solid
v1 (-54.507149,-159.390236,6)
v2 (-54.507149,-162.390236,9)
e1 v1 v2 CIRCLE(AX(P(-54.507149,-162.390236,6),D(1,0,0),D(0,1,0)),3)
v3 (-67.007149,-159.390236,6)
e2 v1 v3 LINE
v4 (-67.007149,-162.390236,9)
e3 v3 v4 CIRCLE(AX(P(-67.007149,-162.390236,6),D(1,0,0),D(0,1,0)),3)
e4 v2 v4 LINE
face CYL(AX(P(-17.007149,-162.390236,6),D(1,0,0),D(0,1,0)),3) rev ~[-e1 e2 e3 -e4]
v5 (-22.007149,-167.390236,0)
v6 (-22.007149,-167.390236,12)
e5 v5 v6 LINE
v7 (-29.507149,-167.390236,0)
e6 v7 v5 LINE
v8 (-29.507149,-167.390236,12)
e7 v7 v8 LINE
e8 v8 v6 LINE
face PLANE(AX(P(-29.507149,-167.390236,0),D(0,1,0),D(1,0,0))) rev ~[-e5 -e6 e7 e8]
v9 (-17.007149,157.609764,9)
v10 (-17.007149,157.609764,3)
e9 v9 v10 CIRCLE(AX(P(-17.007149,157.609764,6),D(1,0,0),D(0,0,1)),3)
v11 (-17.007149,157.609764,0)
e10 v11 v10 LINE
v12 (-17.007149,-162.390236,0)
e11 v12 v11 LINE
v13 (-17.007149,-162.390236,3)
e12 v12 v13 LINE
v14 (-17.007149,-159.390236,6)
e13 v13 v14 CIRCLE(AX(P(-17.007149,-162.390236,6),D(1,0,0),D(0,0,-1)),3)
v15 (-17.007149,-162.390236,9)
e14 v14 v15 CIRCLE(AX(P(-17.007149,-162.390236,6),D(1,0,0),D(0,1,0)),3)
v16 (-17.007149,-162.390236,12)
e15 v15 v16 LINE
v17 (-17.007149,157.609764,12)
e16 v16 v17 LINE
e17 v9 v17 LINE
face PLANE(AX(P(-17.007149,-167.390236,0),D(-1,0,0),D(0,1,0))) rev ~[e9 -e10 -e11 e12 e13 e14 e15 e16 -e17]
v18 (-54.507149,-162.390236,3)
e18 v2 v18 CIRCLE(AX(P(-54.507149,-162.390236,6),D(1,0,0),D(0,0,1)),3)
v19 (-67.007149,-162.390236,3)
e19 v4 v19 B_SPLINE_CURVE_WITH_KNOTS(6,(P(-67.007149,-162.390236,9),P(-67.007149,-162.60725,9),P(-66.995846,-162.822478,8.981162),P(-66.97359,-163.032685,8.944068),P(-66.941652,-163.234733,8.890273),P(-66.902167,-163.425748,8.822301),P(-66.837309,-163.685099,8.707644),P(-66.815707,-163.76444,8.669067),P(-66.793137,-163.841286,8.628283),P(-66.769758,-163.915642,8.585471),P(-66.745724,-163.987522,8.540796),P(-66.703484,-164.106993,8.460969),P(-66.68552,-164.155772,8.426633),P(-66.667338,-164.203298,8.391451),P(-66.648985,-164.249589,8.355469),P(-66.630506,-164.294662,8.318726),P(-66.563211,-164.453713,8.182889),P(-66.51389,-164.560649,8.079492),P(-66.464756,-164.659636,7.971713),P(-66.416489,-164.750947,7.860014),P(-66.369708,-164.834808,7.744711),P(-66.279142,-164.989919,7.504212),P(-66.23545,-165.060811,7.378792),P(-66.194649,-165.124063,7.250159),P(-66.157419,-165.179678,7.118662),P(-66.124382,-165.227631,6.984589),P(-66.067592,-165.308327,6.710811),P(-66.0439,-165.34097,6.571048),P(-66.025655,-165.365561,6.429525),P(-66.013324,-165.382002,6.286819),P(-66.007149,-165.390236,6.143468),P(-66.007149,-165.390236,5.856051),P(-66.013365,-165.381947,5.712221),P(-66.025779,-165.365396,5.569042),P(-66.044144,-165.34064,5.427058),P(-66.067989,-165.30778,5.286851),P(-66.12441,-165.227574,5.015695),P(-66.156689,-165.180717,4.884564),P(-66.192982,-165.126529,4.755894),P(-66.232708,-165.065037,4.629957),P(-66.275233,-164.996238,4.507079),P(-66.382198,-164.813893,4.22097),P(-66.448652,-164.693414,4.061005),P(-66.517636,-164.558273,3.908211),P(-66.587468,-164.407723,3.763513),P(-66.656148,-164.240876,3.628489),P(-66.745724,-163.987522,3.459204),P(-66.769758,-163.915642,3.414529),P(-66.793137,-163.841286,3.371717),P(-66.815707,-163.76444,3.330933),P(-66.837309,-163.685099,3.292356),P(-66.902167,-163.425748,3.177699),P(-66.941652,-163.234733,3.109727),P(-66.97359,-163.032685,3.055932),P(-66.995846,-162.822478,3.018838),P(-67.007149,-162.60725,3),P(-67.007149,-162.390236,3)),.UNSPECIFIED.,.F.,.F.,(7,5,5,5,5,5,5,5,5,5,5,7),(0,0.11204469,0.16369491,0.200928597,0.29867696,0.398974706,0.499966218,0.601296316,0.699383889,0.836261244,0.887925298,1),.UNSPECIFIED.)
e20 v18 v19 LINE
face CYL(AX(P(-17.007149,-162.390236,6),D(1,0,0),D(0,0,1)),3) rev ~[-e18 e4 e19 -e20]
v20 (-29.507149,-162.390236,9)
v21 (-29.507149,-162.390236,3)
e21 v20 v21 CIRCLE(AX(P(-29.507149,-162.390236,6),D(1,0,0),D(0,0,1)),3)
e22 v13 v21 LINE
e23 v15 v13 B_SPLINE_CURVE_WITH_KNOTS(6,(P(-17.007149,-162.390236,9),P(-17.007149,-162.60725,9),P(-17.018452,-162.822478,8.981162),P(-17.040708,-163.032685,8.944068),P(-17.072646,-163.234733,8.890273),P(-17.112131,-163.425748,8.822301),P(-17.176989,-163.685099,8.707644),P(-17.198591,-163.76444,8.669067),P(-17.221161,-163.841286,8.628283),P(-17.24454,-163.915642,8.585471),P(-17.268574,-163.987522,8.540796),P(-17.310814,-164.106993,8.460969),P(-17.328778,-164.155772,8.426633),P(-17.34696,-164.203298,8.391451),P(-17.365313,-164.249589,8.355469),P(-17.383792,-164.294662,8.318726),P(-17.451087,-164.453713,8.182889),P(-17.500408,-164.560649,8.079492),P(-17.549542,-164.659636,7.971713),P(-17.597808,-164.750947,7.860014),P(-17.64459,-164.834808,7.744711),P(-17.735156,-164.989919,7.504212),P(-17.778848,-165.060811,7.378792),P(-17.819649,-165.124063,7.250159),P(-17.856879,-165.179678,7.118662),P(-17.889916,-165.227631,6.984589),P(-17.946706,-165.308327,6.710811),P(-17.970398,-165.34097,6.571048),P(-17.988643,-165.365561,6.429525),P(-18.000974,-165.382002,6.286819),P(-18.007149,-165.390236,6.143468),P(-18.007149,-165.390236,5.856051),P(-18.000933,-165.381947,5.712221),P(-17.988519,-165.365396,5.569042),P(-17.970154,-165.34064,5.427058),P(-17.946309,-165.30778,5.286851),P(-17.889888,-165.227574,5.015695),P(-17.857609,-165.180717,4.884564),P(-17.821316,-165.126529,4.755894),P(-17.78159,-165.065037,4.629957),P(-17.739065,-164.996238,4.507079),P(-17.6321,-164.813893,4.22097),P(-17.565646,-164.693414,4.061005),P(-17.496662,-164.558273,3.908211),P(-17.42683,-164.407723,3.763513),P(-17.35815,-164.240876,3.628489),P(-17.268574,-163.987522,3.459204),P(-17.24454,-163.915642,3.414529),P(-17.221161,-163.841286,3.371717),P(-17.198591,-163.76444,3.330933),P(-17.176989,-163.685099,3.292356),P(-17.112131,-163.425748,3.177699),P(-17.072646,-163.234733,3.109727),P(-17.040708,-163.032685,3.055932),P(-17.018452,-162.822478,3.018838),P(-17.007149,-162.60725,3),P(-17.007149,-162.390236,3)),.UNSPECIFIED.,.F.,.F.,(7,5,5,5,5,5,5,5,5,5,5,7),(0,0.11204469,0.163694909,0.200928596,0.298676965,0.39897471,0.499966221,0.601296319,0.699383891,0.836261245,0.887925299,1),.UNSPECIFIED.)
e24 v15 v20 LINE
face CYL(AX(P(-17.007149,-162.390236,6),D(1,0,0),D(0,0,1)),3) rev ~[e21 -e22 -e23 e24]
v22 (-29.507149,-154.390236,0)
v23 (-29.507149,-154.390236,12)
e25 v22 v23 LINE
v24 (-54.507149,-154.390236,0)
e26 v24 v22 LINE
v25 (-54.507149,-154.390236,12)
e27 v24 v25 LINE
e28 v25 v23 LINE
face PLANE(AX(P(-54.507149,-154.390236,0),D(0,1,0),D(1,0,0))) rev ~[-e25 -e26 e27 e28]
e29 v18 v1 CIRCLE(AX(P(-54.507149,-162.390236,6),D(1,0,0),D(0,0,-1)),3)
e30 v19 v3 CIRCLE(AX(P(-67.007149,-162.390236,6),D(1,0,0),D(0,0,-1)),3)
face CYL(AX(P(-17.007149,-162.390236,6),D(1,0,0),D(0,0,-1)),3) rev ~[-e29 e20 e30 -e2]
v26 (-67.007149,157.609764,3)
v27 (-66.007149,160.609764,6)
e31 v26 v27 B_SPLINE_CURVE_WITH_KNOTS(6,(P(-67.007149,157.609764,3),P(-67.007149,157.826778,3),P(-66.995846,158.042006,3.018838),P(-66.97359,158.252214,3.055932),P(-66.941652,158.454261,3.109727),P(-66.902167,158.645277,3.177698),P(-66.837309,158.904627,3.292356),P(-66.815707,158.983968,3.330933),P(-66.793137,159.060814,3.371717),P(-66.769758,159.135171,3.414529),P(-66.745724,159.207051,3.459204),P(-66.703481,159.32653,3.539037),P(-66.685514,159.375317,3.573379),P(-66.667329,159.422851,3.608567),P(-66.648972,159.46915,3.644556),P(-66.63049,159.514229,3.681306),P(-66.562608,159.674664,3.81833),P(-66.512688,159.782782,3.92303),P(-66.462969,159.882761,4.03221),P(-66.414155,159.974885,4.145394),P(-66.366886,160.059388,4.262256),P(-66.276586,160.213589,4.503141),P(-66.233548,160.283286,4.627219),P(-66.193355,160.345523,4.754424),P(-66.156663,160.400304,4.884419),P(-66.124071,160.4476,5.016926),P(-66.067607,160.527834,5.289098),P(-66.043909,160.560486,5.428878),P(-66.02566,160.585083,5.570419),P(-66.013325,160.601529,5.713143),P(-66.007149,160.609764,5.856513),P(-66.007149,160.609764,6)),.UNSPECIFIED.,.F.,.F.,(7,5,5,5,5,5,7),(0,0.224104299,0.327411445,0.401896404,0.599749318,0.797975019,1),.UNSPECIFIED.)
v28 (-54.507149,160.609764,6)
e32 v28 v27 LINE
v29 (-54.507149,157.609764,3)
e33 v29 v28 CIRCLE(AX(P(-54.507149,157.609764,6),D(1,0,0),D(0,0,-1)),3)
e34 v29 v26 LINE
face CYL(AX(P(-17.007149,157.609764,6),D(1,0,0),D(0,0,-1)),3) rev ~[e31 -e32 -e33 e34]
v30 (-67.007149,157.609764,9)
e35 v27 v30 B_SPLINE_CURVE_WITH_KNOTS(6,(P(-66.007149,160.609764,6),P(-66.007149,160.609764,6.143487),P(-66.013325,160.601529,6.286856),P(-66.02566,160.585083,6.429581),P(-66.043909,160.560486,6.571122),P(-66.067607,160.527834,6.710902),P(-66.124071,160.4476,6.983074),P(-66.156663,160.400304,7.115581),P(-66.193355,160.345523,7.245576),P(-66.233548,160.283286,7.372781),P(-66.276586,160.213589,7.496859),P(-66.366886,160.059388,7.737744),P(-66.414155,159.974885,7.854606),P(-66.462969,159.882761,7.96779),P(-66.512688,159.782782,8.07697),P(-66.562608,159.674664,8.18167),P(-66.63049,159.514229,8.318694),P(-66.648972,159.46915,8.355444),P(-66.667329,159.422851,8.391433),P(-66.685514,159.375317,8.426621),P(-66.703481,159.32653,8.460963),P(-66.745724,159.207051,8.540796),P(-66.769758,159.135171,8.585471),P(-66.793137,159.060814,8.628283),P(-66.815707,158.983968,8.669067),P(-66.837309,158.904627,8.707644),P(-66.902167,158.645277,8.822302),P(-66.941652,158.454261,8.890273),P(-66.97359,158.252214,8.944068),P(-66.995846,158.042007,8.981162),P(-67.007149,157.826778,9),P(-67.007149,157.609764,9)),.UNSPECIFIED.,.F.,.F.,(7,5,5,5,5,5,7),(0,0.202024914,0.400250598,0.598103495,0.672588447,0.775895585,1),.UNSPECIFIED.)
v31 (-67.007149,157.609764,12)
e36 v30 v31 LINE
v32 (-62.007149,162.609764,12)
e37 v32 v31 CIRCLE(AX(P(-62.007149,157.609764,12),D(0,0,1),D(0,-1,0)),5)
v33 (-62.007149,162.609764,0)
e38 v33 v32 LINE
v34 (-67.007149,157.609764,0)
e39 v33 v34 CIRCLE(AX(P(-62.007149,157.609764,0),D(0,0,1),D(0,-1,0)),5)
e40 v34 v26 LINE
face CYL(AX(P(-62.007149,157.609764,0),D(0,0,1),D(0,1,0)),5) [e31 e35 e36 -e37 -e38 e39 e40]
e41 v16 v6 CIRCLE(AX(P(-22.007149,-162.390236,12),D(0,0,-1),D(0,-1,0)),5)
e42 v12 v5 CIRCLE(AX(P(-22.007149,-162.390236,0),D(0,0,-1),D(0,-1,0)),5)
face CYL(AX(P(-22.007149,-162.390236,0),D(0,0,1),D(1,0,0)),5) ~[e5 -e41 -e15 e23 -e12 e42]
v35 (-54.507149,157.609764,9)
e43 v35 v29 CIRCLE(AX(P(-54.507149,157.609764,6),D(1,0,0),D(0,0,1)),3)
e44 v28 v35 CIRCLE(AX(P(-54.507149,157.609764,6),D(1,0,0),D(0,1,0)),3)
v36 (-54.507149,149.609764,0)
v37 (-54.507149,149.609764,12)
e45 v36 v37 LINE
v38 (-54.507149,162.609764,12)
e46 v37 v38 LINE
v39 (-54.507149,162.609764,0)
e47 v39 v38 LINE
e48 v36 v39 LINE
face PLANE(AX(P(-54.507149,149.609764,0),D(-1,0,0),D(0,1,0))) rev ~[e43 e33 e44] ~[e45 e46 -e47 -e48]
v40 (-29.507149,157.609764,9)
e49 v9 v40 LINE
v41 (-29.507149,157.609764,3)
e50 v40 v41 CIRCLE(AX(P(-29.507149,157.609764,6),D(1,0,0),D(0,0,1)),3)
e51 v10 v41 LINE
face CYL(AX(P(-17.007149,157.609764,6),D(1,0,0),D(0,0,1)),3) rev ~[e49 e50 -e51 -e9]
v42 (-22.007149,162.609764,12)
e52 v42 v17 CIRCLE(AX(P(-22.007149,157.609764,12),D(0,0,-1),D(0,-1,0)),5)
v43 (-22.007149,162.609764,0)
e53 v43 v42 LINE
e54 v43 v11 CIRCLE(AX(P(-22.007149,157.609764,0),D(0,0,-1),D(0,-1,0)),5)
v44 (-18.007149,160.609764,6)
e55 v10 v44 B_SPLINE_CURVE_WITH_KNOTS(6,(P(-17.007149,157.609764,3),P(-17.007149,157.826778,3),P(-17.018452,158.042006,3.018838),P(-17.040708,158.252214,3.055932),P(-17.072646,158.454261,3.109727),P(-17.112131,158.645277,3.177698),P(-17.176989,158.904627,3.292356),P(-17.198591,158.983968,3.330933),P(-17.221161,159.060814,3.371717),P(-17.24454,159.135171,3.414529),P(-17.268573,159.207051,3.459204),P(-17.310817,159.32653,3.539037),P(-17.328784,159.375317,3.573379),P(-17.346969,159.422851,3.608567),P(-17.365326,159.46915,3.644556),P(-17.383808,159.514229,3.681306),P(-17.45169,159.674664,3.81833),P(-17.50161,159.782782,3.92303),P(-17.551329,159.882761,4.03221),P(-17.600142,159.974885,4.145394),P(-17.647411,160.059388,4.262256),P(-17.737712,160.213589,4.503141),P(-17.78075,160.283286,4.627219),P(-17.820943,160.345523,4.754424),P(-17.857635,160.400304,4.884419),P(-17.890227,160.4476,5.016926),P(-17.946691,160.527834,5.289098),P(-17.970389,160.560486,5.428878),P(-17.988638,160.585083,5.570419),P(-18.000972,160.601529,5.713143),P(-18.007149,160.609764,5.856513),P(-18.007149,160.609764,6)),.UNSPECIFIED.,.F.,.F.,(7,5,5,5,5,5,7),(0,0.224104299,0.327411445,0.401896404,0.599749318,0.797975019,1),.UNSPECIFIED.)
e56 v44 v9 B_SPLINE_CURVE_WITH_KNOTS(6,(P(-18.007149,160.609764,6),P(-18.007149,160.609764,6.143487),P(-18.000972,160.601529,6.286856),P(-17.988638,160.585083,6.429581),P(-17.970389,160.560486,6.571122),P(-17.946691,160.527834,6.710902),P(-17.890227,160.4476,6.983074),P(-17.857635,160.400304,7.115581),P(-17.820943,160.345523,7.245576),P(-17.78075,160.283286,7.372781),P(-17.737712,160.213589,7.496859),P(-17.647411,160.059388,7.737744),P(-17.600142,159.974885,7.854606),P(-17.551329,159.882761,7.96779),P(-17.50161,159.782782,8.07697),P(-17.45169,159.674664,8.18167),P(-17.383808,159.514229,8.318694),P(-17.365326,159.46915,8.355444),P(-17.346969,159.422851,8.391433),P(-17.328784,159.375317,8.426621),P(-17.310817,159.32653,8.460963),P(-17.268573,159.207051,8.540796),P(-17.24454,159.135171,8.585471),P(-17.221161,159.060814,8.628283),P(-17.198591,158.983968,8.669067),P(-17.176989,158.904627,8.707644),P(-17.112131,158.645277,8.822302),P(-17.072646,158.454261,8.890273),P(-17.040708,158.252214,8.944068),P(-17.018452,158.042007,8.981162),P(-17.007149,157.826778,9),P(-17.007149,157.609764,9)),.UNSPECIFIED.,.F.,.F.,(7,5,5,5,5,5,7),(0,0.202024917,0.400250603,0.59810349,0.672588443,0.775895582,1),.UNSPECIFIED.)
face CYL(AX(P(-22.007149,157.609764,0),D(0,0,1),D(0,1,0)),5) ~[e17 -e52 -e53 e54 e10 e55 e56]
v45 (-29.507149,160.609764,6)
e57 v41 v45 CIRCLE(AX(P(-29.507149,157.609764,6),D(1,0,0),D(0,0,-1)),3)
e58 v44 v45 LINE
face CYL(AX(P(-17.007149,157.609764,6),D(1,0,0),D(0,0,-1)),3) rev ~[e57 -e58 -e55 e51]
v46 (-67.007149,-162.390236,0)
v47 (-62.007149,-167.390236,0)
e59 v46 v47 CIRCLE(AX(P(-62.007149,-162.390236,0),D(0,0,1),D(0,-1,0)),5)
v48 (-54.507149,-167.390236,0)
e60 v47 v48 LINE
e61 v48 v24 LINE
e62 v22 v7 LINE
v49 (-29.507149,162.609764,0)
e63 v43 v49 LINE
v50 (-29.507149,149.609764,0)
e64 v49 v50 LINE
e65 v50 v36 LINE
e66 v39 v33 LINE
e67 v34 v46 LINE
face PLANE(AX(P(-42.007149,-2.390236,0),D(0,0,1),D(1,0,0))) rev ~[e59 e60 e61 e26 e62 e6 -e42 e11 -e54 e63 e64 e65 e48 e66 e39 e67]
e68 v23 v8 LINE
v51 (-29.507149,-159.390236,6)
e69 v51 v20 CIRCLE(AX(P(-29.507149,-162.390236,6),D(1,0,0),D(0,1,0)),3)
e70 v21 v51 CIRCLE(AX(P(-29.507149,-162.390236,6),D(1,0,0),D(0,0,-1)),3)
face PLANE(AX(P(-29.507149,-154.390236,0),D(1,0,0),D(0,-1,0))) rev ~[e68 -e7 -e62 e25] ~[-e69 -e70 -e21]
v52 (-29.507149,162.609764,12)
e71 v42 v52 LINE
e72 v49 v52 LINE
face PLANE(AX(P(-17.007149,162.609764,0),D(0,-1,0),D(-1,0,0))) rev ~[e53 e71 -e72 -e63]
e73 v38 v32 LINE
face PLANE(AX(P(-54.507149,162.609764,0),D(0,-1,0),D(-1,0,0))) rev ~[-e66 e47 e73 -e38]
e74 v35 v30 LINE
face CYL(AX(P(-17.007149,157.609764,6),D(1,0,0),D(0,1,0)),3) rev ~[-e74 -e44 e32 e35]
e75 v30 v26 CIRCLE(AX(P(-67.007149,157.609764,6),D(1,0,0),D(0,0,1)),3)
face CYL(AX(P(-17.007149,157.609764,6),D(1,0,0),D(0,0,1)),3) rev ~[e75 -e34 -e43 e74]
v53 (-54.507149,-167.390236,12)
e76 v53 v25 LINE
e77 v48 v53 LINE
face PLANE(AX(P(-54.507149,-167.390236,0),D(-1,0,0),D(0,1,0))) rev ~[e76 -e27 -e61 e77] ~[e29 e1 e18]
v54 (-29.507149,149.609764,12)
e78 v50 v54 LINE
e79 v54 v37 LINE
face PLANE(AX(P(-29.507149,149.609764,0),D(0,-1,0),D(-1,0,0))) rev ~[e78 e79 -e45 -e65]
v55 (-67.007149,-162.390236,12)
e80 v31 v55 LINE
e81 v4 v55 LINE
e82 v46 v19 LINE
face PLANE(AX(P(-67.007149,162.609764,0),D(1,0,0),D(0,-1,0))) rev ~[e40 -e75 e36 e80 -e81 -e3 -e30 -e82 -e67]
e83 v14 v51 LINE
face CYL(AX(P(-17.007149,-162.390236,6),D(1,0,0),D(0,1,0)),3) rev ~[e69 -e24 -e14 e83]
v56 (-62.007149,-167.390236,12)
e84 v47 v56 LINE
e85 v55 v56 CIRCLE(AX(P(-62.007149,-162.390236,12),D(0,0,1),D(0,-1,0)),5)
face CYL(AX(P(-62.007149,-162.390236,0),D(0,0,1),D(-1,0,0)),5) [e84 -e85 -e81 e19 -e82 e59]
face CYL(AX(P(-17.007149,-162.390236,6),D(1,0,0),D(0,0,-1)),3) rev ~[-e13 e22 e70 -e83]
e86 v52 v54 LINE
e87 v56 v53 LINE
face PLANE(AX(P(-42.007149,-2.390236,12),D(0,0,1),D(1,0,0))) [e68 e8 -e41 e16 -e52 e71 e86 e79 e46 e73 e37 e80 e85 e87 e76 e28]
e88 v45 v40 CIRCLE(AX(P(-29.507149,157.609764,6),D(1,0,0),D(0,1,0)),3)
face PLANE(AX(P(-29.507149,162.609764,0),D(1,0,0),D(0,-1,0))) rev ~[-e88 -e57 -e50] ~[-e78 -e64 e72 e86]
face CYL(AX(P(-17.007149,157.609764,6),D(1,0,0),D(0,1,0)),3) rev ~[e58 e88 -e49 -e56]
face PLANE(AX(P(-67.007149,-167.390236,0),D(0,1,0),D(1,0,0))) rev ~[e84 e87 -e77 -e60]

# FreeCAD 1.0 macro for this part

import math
import FreeCAD as App
import Part
import Sketcher
from FreeCAD import Vector


def edges_at(feature, points):
    """Names of the edges that pass closest to the given points."""
    edges = feature.Shape.Edges
    near = lambda p: min(range(len(edges)), key=lambda i: edges[i].distToShape(Part.Vertex(*p))[0])
    return sorted({f"Edge{near(p) + 1}" for p in points})


def add_polygon(sketch, points):
    """Adds a closed chain of lines whose ends are joined by coincident constraints."""
    first, n = sketch.GeometryCount, len(points)
    for a, b in zip(points, points[1:] + points[:1]):
        sketch.addGeometry(Part.LineSegment(App.Vector(*a, 0), App.Vector(*b, 0)), False)
    for i in range(n):
        sketch.addConstraint(Sketcher.Constraint("Coincident", first + i, 2, first + (i + 1) % n, 1))

doc = App.newDocument("Part")
body = doc.addObject("PartDesign::Body", "Body")

# Sketch on XY plane
sketch1 = body.newObject("Sketcher::SketchObject", "Sketch")
sketch1.AttachmentSupport = (doc.getObject("XY_Plane"), [""])
sketch1.MapMode = "FlatFace"
add_polygon(sketch1, [(-55, 163), (-67, 163), (-67, -167), (-55, -167), (-55, -154), (-30, -154), (-30, -167), (-17, -167), (-17, 163), (-30, 163), (-30, 150), (-55, 150)])  # lines 0-11
sketch1.addConstraint(Sketcher.Constraint("Horizontal", 0))
sketch1.addConstraint(Sketcher.Constraint("Vertical", 1))
sketch1.addConstraint(Sketcher.Constraint("Horizontal", 2))
sketch1.addConstraint(Sketcher.Constraint("Vertical", 3))
sketch1.addConstraint(Sketcher.Constraint("Horizontal", 4))
sketch1.addConstraint(Sketcher.Constraint("Vertical", 5))
sketch1.addConstraint(Sketcher.Constraint("Horizontal", 6))
sketch1.addConstraint(Sketcher.Constraint("Vertical", 7))
sketch1.addConstraint(Sketcher.Constraint("Horizontal", 8))
sketch1.addConstraint(Sketcher.Constraint("Vertical", 9))
sketch1.addConstraint(Sketcher.Constraint("Horizontal", 10))
sketch1.addConstraint(Sketcher.Constraint("Vertical", 11))
sketch1.addConstraint(Sketcher.Constraint("Horizontal", 2, 2, 5, 2))
sketch1.addConstraint(Sketcher.Constraint("Horizontal", 0, 2, 7, 2))
sketch1.addConstraint(Sketcher.Constraint("Vertical", 5, 2, 8, 2))
sketch1.addConstraint(Sketcher.Constraint("Vertical", 3, 2, 10, 2))
sketch1.addConstraint(Sketcher.Constraint("Equal", 2, 6))
sketch1.addConstraint(Sketcher.Constraint("Equal", 5, 9))
sketch1.addConstraint(Sketcher.Constraint("DistanceX", 4, 1, 4, 2, 25.0))
sketch1.addConstraint(Sketcher.Constraint("DistanceY", 1, 2, 1, 1, 330.0))
sketch1.addConstraint(Sketcher.Constraint("DistanceY", 3, 1, 3, 2, 13.0))
sketch1.addConstraint(Sketcher.Constraint("DistanceX", 0, 2, 0, 1, 12.5))
sketch1.addConstraint(Sketcher.Constraint("DistanceX", 0, 2, -1, 1, 67.007149))
sketch1.addConstraint(Sketcher.Constraint("DistanceY", -1, 1, 0, 2, 162.609764))
pad1 = body.newObject("PartDesign::Pad", "Pad")
pad1.Profile = sketch1
pad1.Length = 12
doc.recompute()

fillet = body.newObject("PartDesign::Fillet", "Fillet")
fillet.Base = (pad1, edges_at(pad1, [(-67.007, 162.61, 6)]))
fillet.Radius = 5
doc.recompute()

fillet2 = body.newObject("PartDesign::Fillet", "Fillet001")
fillet2.Base = (fillet, edges_at(fillet, [(-67.007, -167.39, 6), (-17.007, -167.39, 6), (-17.007, 162.61, 6)]))
fillet2.Radius = 5

# Sketch on YZ plane
sketch2 = body.newObject("Sketcher::SketchObject", "Sketch001")
sketch2.AttachmentSupport = (doc.getObject("YZ_Plane"), [""])
sketch2.MapMode = "FlatFace"
sketch2.AttachmentOffset = App.Placement(Vector(0, 0, -17.007149), App.Rotation())
sketch2.addGeometry(Part.ArcOfCircle(Part.Circle(Vector(157.6, 6, 0), Vector(0, 0, 1), 3), math.radians(90), math.radians(270)), False)
sketch2.addGeometry(Part.ArcOfCircle(Part.Circle(Vector(157.6, 6, 0), Vector(0, 0, 1), 3), math.radians(-90), math.radians(0)), False)
sketch2.addGeometry(Part.ArcOfCircle(Part.Circle(Vector(157.6, 6, 0), Vector(0, 0, 1), 3), math.radians(0), math.radians(90)), False)
sketch2.addGeometry(Part.ArcOfCircle(Part.Circle(Vector(-162.4, 6, 0), Vector(0, 0, 1), 3), math.radians(90), math.radians(270)), False)
sketch2.addGeometry(Part.ArcOfCircle(Part.Circle(Vector(-162.4, 6, 0), Vector(0, 0, 1), 3), math.radians(-90), math.radians(0)), False)
sketch2.addGeometry(Part.ArcOfCircle(Part.Circle(Vector(-162.4, 6, 0), Vector(0, 0, 1), 3), math.radians(0), math.radians(90)), False)
sketch2.addConstraint(Sketcher.Constraint("Tangent", 0, 2, 1, 1))
sketch2.addConstraint(Sketcher.Constraint("Tangent", 1, 2, 2, 1))
sketch2.addConstraint(Sketcher.Constraint("Tangent", 2, 2, 0, 1))
sketch2.addConstraint(Sketcher.Constraint("Tangent", 3, 2, 4, 1))
sketch2.addConstraint(Sketcher.Constraint("Tangent", 4, 2, 5, 1))
sketch2.addConstraint(Sketcher.Constraint("Tangent", 5, 2, 3, 1))
sketch2.addConstraint(Sketcher.Constraint("Equal", 2, 3))
sketch2.addConstraint(Sketcher.Constraint("Horizontal", 2, 3, 3, 3))
sketch2.addConstraint(Sketcher.Constraint("Horizontal", 5, 3, 1, 2))
sketch2.addConstraint(Sketcher.Constraint("Horizontal", 1, 2, 4, 2))
sketch2.addConstraint(Sketcher.Constraint("Vertical", 2, 3, 0, 2))
sketch2.addConstraint(Sketcher.Constraint("Vertical", 0, 2, 2, 2))
sketch2.addConstraint(Sketcher.Constraint("Vertical", 5, 3, 3, 2))
sketch2.addConstraint(Sketcher.Constraint("Vertical", 3, 2, 5, 2))
sketch2.addConstraint(Sketcher.Constraint("Radius", 0, 3.0))
sketch2.addConstraint(Sketcher.Constraint("DistanceY", -1, 1, 0, 3, 6.0))
sketch2.addConstraint(Sketcher.Constraint("DistanceX", 3, 3, 0, 3, 320.0))
sketch2.addConstraint(Sketcher.Constraint("DistanceX", -1, 1, 0, 3, 157.609764))
pocket1 = body.newObject("PartDesign::Pocket", "Pocket")
pocket1.Profile = sketch2
pocket1.Type = "ThroughAll"

doc.recompute()
